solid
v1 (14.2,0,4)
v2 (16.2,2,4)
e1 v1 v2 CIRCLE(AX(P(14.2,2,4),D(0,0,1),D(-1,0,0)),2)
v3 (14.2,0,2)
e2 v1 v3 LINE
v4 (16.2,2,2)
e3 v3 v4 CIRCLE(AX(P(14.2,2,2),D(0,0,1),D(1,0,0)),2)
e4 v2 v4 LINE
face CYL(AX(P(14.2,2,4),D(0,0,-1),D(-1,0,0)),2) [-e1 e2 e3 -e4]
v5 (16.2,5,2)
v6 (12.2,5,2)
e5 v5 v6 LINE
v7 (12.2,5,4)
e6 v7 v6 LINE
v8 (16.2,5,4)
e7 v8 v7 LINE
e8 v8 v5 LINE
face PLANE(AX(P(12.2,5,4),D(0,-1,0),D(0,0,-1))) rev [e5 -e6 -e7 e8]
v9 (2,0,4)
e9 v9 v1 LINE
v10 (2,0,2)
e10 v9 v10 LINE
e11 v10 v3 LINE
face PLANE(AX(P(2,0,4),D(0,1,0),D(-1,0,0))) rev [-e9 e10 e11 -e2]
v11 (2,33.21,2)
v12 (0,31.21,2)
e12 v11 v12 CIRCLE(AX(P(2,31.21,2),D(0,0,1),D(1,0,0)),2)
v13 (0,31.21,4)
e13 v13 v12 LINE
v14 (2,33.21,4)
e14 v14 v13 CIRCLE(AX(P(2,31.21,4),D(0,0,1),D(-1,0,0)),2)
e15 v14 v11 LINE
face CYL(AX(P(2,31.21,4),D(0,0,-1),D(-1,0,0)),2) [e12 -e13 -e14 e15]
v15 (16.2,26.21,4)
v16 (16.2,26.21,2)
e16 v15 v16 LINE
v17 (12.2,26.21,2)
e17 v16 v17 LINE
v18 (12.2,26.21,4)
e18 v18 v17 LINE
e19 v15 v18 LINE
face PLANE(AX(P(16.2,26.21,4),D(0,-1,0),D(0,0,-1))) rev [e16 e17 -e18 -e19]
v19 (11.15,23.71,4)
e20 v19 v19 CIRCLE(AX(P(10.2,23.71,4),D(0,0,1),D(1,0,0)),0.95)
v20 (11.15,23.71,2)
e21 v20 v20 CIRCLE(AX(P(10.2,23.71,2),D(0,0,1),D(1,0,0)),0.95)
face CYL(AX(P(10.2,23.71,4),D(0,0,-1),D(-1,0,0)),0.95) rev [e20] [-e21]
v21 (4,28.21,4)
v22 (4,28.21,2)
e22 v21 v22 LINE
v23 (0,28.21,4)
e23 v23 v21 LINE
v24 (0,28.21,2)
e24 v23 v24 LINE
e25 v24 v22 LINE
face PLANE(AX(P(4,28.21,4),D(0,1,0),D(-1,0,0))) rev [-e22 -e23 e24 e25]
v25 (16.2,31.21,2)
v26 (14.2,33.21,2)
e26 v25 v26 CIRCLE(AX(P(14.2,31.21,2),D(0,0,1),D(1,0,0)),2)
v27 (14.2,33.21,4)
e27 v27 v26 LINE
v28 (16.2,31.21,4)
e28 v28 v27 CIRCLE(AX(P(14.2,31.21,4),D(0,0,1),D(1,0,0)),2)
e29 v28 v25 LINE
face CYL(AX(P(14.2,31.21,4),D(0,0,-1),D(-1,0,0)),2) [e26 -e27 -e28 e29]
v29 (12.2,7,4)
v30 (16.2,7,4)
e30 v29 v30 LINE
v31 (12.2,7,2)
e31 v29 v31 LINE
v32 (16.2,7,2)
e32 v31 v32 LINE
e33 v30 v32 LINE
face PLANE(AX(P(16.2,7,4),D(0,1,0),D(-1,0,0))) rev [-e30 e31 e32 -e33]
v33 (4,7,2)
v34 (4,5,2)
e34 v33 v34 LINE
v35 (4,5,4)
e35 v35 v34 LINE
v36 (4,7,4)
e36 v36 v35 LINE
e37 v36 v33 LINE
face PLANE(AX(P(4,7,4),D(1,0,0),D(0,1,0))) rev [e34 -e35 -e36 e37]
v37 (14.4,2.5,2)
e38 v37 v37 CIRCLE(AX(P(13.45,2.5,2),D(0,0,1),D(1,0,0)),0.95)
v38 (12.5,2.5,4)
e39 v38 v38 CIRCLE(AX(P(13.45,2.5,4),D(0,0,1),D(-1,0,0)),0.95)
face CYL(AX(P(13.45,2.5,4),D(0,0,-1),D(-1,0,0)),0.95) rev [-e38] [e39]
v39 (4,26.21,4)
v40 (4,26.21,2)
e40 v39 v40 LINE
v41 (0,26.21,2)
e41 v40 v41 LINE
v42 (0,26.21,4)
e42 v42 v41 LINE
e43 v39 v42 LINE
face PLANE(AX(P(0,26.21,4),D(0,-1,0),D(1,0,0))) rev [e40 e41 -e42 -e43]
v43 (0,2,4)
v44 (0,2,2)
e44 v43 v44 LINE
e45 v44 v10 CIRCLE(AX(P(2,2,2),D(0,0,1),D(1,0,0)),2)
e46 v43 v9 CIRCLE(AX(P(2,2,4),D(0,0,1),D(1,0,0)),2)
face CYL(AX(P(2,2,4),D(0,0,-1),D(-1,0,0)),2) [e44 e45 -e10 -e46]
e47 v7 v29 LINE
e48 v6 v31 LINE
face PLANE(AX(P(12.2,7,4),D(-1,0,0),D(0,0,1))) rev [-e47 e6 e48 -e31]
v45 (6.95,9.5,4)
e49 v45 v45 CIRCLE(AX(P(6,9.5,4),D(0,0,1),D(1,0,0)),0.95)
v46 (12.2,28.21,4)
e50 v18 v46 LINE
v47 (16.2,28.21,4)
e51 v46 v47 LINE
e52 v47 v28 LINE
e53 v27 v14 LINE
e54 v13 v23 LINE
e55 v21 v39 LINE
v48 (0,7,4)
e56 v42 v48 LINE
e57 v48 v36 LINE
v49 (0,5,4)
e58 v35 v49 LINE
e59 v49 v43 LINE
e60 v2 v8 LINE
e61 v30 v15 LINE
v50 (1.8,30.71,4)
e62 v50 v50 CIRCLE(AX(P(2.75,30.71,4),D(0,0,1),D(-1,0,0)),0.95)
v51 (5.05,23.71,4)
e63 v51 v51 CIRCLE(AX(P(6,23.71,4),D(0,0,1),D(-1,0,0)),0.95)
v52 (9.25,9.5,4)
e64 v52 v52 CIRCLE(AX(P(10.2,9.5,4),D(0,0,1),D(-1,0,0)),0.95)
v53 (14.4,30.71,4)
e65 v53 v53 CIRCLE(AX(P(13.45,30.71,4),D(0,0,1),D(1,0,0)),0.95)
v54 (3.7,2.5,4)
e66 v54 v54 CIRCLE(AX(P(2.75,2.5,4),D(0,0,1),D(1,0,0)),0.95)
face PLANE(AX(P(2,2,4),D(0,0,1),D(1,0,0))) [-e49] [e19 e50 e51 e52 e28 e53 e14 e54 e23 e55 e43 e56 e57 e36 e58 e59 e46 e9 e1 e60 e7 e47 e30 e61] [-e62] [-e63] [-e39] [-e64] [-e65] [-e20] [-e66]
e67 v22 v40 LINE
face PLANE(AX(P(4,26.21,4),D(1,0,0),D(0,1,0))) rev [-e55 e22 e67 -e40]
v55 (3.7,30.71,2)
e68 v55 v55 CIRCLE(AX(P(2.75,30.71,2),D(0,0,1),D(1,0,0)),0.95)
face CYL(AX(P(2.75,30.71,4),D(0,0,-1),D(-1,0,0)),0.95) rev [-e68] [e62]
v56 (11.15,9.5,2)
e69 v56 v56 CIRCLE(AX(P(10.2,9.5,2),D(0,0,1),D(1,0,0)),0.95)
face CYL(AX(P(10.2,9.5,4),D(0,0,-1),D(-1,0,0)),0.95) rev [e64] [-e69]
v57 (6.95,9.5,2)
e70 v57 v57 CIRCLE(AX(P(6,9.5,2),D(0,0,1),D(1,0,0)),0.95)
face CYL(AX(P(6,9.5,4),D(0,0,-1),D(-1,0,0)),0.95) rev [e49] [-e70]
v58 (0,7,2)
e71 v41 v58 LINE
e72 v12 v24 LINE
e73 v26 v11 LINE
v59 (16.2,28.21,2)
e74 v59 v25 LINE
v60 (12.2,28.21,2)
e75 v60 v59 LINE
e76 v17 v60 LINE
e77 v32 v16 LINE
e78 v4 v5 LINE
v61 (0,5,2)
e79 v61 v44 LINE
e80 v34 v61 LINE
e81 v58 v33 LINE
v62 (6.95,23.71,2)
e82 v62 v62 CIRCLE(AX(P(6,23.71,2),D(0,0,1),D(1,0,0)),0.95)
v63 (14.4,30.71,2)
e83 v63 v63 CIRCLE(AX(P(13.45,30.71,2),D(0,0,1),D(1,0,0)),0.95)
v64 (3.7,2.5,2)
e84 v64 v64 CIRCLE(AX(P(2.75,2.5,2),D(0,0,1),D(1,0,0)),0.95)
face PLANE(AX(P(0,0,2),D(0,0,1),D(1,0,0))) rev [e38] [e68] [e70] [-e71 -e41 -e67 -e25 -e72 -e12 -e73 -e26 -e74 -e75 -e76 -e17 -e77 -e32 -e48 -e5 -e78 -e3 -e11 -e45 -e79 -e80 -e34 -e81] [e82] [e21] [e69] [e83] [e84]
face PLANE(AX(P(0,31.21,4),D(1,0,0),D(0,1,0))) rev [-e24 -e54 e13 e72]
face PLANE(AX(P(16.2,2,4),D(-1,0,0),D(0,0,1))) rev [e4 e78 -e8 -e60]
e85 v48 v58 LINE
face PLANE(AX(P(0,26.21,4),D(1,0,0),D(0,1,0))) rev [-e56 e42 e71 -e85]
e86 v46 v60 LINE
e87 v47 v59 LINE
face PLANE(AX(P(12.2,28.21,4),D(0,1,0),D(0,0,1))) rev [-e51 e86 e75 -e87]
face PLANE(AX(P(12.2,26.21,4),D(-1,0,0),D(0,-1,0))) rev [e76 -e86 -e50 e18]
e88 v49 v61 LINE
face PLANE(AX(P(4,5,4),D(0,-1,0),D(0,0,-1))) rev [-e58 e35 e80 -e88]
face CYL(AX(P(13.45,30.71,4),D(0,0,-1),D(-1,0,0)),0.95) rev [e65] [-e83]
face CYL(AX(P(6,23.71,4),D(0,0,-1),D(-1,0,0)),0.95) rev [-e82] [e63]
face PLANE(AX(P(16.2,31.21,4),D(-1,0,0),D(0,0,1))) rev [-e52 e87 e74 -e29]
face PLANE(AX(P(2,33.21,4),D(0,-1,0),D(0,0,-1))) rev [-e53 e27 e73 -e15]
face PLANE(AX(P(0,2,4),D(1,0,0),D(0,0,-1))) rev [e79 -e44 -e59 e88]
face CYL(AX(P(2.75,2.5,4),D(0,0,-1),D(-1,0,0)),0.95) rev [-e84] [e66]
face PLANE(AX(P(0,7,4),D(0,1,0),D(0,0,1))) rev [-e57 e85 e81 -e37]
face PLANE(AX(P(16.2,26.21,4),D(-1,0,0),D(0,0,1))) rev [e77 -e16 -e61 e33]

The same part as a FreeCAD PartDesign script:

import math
import FreeCAD as App
import Part
import Sketcher
Q = App.Units.Quantity


def add_polygon(sketch, points):
    """Adds a closed chain of lines whose ends are joined by coincident constraints."""
    first, n = sketch.GeometryCount, len(points)
    for a, b in zip(points, points[1:] + points[:1]):
        sketch.addGeometry(Part.LineSegment(App.Vector(*a, 0), App.Vector(*b, 0)), False)
    for i in range(n):
        sketch.addConstraint(Sketcher.Constraint("Coincident", first + i, 2, first + (i + 1) % n, 1))

doc = App.newDocument("Part")
body = doc.addObject("PartDesign::Body", "Body")

# Sketch on XY plane
sketch1 = body.newObject("Sketcher::SketchObject", "Sketch")
sketch1.AttachmentSupport = (doc.getObject("XY_Plane"), [""])
sketch1.MapMode = "FlatFace"
sketch1.addGeometry([
    Part.LineSegment(App.Vector(0, 26.2, 0), App.Vector(0, 7, 0)),  # 0
    Part.LineSegment(App.Vector(0, 7, 0), App.Vector(4, 7, 0)),  # 1
    Part.LineSegment(App.Vector(4, 7, 0), App.Vector(4, 5, 0)),  # 2
    Part.LineSegment(App.Vector(4, 5, 0), App.Vector(0, 5, 0)),  # 3
    Part.LineSegment(App.Vector(0, 5, 0), App.Vector(0, 2, 0)),  # 4
    Part.ArcOfCircle(Part.Circle(App.Vector(2, 2, 0), App.Vector(0, 0, 1), 2), math.radians(-180), math.radians(-90)),  # 5
    Part.LineSegment(App.Vector(2, 0, 0), App.Vector(14.2, 0, 0)),  # 6
    Part.ArcOfCircle(Part.Circle(App.Vector(14.2, 2, 0), App.Vector(0, 0, 1), 2), math.radians(-90), math.radians(0)),  # 7
    Part.LineSegment(App.Vector(16.2, 2, 0), App.Vector(16.2, 5, 0)),  # 8
    Part.LineSegment(App.Vector(16.2, 5, 0), App.Vector(12.2, 5, 0)),  # 9
    Part.LineSegment(App.Vector(12.2, 5, 0), App.Vector(12.2, 7, 0)),  # 10
    Part.LineSegment(App.Vector(12.2, 7, 0), App.Vector(16.2, 7, 0)),  # 11
    Part.LineSegment(App.Vector(16.2, 7, 0), App.Vector(16.2, 26.2, 0)),  # 12
    Part.LineSegment(App.Vector(16.2, 26.2, 0), App.Vector(12.2, 26.2, 0)),  # 13
    Part.LineSegment(App.Vector(12.2, 26.2, 0), App.Vector(12.2, 28.2, 0)),  # 14
    Part.LineSegment(App.Vector(12.2, 28.2, 0), App.Vector(16.2, 28.2, 0)),  # 15
    Part.LineSegment(App.Vector(16.2, 28.2, 0), App.Vector(16.2, 31.2, 0)),  # 16
    Part.ArcOfCircle(Part.Circle(App.Vector(14.2, 31.2, 0), App.Vector(0, 0, 1), 2), math.radians(0), math.radians(90)),  # 17
    Part.LineSegment(App.Vector(14.2, 33.2, 0), App.Vector(2, 33.2, 0)),  # 18
    Part.ArcOfCircle(Part.Circle(App.Vector(2, 31.2, 0), App.Vector(0, 0, 1), 2), math.radians(90), math.radians(180)),  # 19
    Part.LineSegment(App.Vector(0, 31.2, 0), App.Vector(0, 28.2, 0)),  # 20
    Part.LineSegment(App.Vector(0, 28.2, 0), App.Vector(4, 28.2, 0)),  # 21
    Part.LineSegment(App.Vector(4, 28.2, 0), App.Vector(4, 26.2, 0)),  # 22
    Part.LineSegment(App.Vector(4, 26.2, 0), App.Vector(0, 26.2, 0)),  # 23
    Part.Circle(App.Vector(2.8, 2.5, 0), App.Vector(0, 0, 1), 0.9),  # 24
    Part.Circle(App.Vector(6, 9.5, 0), App.Vector(0, 0, 1), 0.9),  # 25
    Part.Circle(App.Vector(13.4, 2.5, 0), App.Vector(0, 0, 1), 0.9),  # 26
    Part.Circle(App.Vector(10.2, 9.5, 0), App.Vector(0, 0, 1), 0.9),  # 27
    Part.Circle(App.Vector(6, 23.7, 0), App.Vector(0, 0, 1), 0.9),  # 28
    Part.Circle(App.Vector(2.8, 30.7, 0), App.Vector(0, 0, 1), 0.9),  # 29
    Part.Circle(App.Vector(10.2, 23.7, 0), App.Vector(0, 0, 1), 0.9),  # 30
    Part.Circle(App.Vector(13.4, 30.7, 0), App.Vector(0, 0, 1), 0.9),  # 31
], False)
sketch1.addConstraint([
    Sketcher.Constraint("Coincident", 0, 2, 1, 1),
    Sketcher.Constraint("Coincident", 1, 2, 2, 1),
    Sketcher.Constraint("Coincident", 2, 2, 3, 1),
    Sketcher.Constraint("Coincident", 3, 2, 4, 1),
    Sketcher.Constraint("Tangent", 4, 2, 5, 1),
    Sketcher.Constraint("Tangent", 5, 2, 6, 1),
    Sketcher.Constraint("Tangent", 6, 2, 7, 1),
    Sketcher.Constraint("Tangent", 7, 2, 8, 1),
    Sketcher.Constraint("Coincident", 8, 2, 9, 1),
    Sketcher.Constraint("Coincident", 9, 2, 10, 1),
    Sketcher.Constraint("Coincident", 10, 2, 11, 1),
    Sketcher.Constraint("Coincident", 11, 2, 12, 1),
    Sketcher.Constraint("Coincident", 12, 2, 13, 1),
    Sketcher.Constraint("Coincident", 13, 2, 14, 1),
    Sketcher.Constraint("Coincident", 14, 2, 15, 1),
    Sketcher.Constraint("Coincident", 15, 2, 16, 1),
    Sketcher.Constraint("Tangent", 16, 2, 17, 1),
    Sketcher.Constraint("Tangent", 17, 2, 18, 1),
    Sketcher.Constraint("Tangent", 18, 2, 19, 1),
    Sketcher.Constraint("Tangent", 19, 2, 20, 1),
    Sketcher.Constraint("Coincident", 20, 2, 21, 1),
    Sketcher.Constraint("Coincident", 21, 2, 22, 1),
    Sketcher.Constraint("Coincident", 22, 2, 23, 1),
    Sketcher.Constraint("Coincident", 23, 2, 0, 1),
    Sketcher.Constraint("Vertical", 0),
    Sketcher.Constraint("Horizontal", 1),
    Sketcher.Constraint("Vertical", 2),
    Sketcher.Constraint("Horizontal", 3),
    Sketcher.Constraint("Vertical", 4),
    Sketcher.Constraint("Horizontal", 6),
    Sketcher.Constraint("Vertical", 8),
    Sketcher.Constraint("Horizontal", 9),
    Sketcher.Constraint("Vertical", 10),
    Sketcher.Constraint("Horizontal", 11),
    Sketcher.Constraint("Vertical", 12),
    Sketcher.Constraint("Horizontal", 13),
    Sketcher.Constraint("Vertical", 14),
    Sketcher.Constraint("Horizontal", 15),
    Sketcher.Constraint("Vertical", 16),
    Sketcher.Constraint("Horizontal", 18),
    Sketcher.Constraint("Vertical", 20),
    Sketcher.Constraint("Horizontal", 21),
    Sketcher.Constraint("Vertical", 22),
    Sketcher.Constraint("Horizontal", 23),
    Sketcher.Constraint("Equal", 5, 7),
    Sketcher.Constraint("Equal", 7, 17),
    Sketcher.Constraint("Equal", 17, 19),
    Sketcher.Constraint("Equal", 24, 25),
    Sketcher.Constraint("Equal", 25, 26),
    Sketcher.Constraint("Equal", 26, 27),
    Sketcher.Constraint("Equal", 27, 28),
    Sketcher.Constraint("Equal", 28, 29),
    Sketcher.Constraint("Equal", 29, 30),
    Sketcher.Constraint("Equal", 30, 31),
    Sketcher.Constraint("PointOnObject", 0, 2, -2),
    Sketcher.Constraint("PointOnObject", 3, 2, -2),
    Sketcher.Constraint("PointOnObject", 5, 2, -1),
    Sketcher.Constraint("PointOnObject", 19, 2, -2),
    Sketcher.Constraint("Horizontal", 24, 3, 26, 3),
    Sketcher.Constraint("Horizontal", 25, 3, 27, 3),
    Sketcher.Constraint("Horizontal", 28, 3, 30, 3),
    Sketcher.Constraint("Horizontal", 29, 3, 31, 3),
    Sketcher.Constraint("Horizontal", 3, 2, 8, 2),
    Sketcher.Constraint("Horizontal", 1, 2, 10, 2),
    Sketcher.Constraint("Horizontal", 15, 2, 20, 2),
    Sketcher.Constraint("Horizontal", 13, 2, 22, 2),
    Sketcher.Constraint("Vertical", 7, 3, 17, 3),
    Sketcher.Constraint("Vertical", 25, 3, 28, 3),
    Sketcher.Constraint("Vertical", 24, 3, 29, 3),
    Sketcher.Constraint("Vertical", 27, 3, 30, 3),
    Sketcher.Constraint("Vertical", 26, 3, 31, 3),
    Sketcher.Constraint("Vertical", 8, 2, 11, 2),
    Sketcher.Constraint("Vertical", 10, 2, 13, 2),
    Sketcher.Constraint("Vertical", 2, 2, 21, 2),
    Sketcher.Constraint("Equal", 3, 9),
    Sketcher.Constraint("Equal", 10, 14),
    Sketcher.Constraint("Equal", 8, 16),
    Sketcher.Constraint("Radius", 5, Q("2 mm")),
    Sketcher.Constraint("Diameter", 24, Q("1.9 mm")),
    Sketcher.Constraint("DistanceX", 1, 1, 1, 2, Q("4 mm")),
    Sketcher.Constraint("DistanceY", 2, 2, 2, 1, Q("2 mm")),
    Sketcher.Constraint("DistanceY", 4, 2, 4, 1, Q("3 mm")),
    Sketcher.Constraint("DistanceX", 6, 1, 6, 2, Q("12.2 mm")),
    Sketcher.Constraint("DistanceX", -1, 1, 25, 3, Q("6 mm")),
    Sketcher.Constraint("DistanceY", 24, 3, 25, 3, Q("7 mm")),
    Sketcher.Constraint("DistanceX", 27, 3, 7, 3, Q("4 mm")),
    Sketcher.Constraint("DistanceY", 28, 3, 29, 3, Q("7 mm")),
    Sketcher.Constraint("DistanceY", 0, 2, 0, 1, Q("19.21 mm")),
    Sketcher.Constraint("DistanceY", -1, 1, 24, 3, Q("2.5 mm")),
    Sketcher.Constraint("DistanceX", 24, 3, 26, 3, Q("10.7 mm")),
    Sketcher.Constraint("DistanceY", 28, 3, 19, 3, Q("7.5 mm")),
    Sketcher.Constraint("DistanceX", -1, 1, 24, 3, Q("2.75 mm")),
])
pad1 = body.newObject("PartDesign::Pad", "Pad")
pad1.Profile = sketch1
pad1.Length = 4

# Sketch on XY plane
sketch2 = body.newObject("Sketcher::SketchObject", "Sketch001")
sketch2.AttachmentSupport = (doc.getObject("XY_Plane"), [""])
sketch2.MapMode = "FlatFace"
add_polygon(sketch2, [(0, 33), (0, 0), (16, 0), (16, 33)])  # lines 0-3
sketch2.addConstraint([
    Sketcher.Constraint("Vertical", 0),
    Sketcher.Constraint("Horizontal", 1),
    Sketcher.Constraint("Vertical", 2),
    Sketcher.Constraint("Horizontal", 3),
    Sketcher.Constraint("Coincident", 0, 2, -1, 1),
    Sketcher.Constraint("DistanceX", 1, 1, 1, 2, Q("16.2 mm")),
    Sketcher.Constraint("DistanceY", 0, 2, 0, 1, Q("33.21 mm")),
])
pocket1 = body.newObject("PartDesign::Pocket", "Pocket")
pocket1.Profile = sketch2
pocket1.Length = 2
pocket1.Reversed = True

doc.recompute()
